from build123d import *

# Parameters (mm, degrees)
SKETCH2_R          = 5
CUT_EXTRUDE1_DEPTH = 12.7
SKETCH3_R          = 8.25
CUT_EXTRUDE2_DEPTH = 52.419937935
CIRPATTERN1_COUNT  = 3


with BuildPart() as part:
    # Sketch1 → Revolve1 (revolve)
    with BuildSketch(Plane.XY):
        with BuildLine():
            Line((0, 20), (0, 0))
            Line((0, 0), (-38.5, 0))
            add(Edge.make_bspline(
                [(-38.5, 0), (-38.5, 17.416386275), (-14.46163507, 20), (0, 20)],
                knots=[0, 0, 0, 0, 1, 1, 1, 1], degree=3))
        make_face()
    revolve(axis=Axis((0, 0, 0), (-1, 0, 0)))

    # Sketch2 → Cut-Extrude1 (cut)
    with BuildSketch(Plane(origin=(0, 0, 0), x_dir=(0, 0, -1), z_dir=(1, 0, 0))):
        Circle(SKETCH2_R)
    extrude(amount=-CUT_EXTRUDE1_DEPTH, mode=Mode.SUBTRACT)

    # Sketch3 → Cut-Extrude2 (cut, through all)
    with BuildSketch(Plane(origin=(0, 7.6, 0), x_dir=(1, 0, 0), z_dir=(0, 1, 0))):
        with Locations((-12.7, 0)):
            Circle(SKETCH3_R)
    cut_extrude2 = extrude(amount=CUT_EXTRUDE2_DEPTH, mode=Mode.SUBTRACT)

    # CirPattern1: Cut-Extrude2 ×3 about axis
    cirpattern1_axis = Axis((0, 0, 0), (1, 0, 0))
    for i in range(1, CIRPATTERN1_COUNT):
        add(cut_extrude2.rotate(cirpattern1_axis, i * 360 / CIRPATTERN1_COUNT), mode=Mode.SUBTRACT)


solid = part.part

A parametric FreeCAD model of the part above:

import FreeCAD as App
import Part
import Sketcher

doc = App.newDocument("Part")
body = doc.addObject("PartDesign::Body", "Body")

# Sketch on XY plane
sketch1 = body.newObject("Sketcher::SketchObject", "Sketch")
sketch1.AttachmentSupport = (doc.getObject("XY_Plane"), [""])
sketch1.MapMode = "FlatFace"
sketch1.addGeometry([
    Part.LineSegment(App.Vector(0, 0, 0), App.Vector(0, 20, 0)),
    Part.BSplineCurve([App.Vector(-38.5, 0, 0), App.Vector(-38.5, 17.416386, 0), App.Vector(-14.461635, 20, 0), App.Vector(0, 20, 0)], [4, 4], [0, 1], False, 3, [1, 1, 1, 1], False),
    Part.LineSegment(App.Vector(-38.5, 0, 0), App.Vector(0, 0, 0)),
], False)
sketch1.addConstraint([
    Sketcher.Constraint("Block", 1),
    Sketcher.Constraint("Coincident", 0, 2, 1, 2),
    Sketcher.Constraint("Coincident", 1, 1, 2, 1),
    Sketcher.Constraint("Coincident", 2, 2, 0, 1),
    Sketcher.Constraint("Vertical", 0),
    Sketcher.Constraint("Horizontal", 2),
])
revolution = body.newObject("PartDesign::Revolution", "Revolution")
revolution.Profile = sketch1
revolution.ReferenceAxis = (sketch1, ["H_Axis"])
revolution.Angle = 360

# Sketch on YZ plane
sketch2 = body.newObject("Sketcher::SketchObject", "Sketch001")
sketch2.AttachmentSupport = (doc.getObject("YZ_Plane"), [""])
sketch2.MapMode = "FlatFace"
sketch2.addGeometry(Part.Circle(App.Vector(0, 0, 0), App.Vector(0, 0, 1), 5), False)
sketch2.addConstraint([
    Sketcher.Constraint("Coincident", 0, 3, -1, 1),
    Sketcher.Constraint("Diameter", 0, 10.0),
])
pocket1 = body.newObject("PartDesign::Pocket", "Pocket")
pocket1.Profile = sketch2
pocket1.Length = 12.7

# Sketch on XZ plane
sketch3 = body.newObject("Sketcher::SketchObject", "Sketch002")
sketch3.AttachmentSupport = (doc.getObject("XZ_Plane"), [""])
sketch3.MapMode = "FlatFace"
sketch3.AttachmentOffset = App.Placement(App.Vector(0, 0, -7.6), App.Rotation())
sketch3.addGeometry(Part.Circle(App.Vector(-12.7, 0, 0), App.Vector(0, 0, 1), 8.25), False)
sketch3.addConstraint([
    Sketcher.Constraint("PointOnObject", 0, 3, -1),
    Sketcher.Constraint("Diameter", 0, 16.5),
    Sketcher.Constraint("DistanceX", 0, 3, -1, 1, 12.7),
])
pocket2 = body.newObject("PartDesign::Pocket", "Pocket001")
pocket2.Profile = sketch3
pocket2.Type = "ThroughAll"
doc.recompute()

polarpattern = body.newObject("PartDesign::PolarPattern", "PolarPattern")
polarpattern.Originals = [pocket2]
polarpattern.Axis = (doc.getObject("X_Axis"), [""])
polarpattern.Angle = 360
polarpattern.Occurrences = 3
body.Tip = polarpattern

doc.recompute()
